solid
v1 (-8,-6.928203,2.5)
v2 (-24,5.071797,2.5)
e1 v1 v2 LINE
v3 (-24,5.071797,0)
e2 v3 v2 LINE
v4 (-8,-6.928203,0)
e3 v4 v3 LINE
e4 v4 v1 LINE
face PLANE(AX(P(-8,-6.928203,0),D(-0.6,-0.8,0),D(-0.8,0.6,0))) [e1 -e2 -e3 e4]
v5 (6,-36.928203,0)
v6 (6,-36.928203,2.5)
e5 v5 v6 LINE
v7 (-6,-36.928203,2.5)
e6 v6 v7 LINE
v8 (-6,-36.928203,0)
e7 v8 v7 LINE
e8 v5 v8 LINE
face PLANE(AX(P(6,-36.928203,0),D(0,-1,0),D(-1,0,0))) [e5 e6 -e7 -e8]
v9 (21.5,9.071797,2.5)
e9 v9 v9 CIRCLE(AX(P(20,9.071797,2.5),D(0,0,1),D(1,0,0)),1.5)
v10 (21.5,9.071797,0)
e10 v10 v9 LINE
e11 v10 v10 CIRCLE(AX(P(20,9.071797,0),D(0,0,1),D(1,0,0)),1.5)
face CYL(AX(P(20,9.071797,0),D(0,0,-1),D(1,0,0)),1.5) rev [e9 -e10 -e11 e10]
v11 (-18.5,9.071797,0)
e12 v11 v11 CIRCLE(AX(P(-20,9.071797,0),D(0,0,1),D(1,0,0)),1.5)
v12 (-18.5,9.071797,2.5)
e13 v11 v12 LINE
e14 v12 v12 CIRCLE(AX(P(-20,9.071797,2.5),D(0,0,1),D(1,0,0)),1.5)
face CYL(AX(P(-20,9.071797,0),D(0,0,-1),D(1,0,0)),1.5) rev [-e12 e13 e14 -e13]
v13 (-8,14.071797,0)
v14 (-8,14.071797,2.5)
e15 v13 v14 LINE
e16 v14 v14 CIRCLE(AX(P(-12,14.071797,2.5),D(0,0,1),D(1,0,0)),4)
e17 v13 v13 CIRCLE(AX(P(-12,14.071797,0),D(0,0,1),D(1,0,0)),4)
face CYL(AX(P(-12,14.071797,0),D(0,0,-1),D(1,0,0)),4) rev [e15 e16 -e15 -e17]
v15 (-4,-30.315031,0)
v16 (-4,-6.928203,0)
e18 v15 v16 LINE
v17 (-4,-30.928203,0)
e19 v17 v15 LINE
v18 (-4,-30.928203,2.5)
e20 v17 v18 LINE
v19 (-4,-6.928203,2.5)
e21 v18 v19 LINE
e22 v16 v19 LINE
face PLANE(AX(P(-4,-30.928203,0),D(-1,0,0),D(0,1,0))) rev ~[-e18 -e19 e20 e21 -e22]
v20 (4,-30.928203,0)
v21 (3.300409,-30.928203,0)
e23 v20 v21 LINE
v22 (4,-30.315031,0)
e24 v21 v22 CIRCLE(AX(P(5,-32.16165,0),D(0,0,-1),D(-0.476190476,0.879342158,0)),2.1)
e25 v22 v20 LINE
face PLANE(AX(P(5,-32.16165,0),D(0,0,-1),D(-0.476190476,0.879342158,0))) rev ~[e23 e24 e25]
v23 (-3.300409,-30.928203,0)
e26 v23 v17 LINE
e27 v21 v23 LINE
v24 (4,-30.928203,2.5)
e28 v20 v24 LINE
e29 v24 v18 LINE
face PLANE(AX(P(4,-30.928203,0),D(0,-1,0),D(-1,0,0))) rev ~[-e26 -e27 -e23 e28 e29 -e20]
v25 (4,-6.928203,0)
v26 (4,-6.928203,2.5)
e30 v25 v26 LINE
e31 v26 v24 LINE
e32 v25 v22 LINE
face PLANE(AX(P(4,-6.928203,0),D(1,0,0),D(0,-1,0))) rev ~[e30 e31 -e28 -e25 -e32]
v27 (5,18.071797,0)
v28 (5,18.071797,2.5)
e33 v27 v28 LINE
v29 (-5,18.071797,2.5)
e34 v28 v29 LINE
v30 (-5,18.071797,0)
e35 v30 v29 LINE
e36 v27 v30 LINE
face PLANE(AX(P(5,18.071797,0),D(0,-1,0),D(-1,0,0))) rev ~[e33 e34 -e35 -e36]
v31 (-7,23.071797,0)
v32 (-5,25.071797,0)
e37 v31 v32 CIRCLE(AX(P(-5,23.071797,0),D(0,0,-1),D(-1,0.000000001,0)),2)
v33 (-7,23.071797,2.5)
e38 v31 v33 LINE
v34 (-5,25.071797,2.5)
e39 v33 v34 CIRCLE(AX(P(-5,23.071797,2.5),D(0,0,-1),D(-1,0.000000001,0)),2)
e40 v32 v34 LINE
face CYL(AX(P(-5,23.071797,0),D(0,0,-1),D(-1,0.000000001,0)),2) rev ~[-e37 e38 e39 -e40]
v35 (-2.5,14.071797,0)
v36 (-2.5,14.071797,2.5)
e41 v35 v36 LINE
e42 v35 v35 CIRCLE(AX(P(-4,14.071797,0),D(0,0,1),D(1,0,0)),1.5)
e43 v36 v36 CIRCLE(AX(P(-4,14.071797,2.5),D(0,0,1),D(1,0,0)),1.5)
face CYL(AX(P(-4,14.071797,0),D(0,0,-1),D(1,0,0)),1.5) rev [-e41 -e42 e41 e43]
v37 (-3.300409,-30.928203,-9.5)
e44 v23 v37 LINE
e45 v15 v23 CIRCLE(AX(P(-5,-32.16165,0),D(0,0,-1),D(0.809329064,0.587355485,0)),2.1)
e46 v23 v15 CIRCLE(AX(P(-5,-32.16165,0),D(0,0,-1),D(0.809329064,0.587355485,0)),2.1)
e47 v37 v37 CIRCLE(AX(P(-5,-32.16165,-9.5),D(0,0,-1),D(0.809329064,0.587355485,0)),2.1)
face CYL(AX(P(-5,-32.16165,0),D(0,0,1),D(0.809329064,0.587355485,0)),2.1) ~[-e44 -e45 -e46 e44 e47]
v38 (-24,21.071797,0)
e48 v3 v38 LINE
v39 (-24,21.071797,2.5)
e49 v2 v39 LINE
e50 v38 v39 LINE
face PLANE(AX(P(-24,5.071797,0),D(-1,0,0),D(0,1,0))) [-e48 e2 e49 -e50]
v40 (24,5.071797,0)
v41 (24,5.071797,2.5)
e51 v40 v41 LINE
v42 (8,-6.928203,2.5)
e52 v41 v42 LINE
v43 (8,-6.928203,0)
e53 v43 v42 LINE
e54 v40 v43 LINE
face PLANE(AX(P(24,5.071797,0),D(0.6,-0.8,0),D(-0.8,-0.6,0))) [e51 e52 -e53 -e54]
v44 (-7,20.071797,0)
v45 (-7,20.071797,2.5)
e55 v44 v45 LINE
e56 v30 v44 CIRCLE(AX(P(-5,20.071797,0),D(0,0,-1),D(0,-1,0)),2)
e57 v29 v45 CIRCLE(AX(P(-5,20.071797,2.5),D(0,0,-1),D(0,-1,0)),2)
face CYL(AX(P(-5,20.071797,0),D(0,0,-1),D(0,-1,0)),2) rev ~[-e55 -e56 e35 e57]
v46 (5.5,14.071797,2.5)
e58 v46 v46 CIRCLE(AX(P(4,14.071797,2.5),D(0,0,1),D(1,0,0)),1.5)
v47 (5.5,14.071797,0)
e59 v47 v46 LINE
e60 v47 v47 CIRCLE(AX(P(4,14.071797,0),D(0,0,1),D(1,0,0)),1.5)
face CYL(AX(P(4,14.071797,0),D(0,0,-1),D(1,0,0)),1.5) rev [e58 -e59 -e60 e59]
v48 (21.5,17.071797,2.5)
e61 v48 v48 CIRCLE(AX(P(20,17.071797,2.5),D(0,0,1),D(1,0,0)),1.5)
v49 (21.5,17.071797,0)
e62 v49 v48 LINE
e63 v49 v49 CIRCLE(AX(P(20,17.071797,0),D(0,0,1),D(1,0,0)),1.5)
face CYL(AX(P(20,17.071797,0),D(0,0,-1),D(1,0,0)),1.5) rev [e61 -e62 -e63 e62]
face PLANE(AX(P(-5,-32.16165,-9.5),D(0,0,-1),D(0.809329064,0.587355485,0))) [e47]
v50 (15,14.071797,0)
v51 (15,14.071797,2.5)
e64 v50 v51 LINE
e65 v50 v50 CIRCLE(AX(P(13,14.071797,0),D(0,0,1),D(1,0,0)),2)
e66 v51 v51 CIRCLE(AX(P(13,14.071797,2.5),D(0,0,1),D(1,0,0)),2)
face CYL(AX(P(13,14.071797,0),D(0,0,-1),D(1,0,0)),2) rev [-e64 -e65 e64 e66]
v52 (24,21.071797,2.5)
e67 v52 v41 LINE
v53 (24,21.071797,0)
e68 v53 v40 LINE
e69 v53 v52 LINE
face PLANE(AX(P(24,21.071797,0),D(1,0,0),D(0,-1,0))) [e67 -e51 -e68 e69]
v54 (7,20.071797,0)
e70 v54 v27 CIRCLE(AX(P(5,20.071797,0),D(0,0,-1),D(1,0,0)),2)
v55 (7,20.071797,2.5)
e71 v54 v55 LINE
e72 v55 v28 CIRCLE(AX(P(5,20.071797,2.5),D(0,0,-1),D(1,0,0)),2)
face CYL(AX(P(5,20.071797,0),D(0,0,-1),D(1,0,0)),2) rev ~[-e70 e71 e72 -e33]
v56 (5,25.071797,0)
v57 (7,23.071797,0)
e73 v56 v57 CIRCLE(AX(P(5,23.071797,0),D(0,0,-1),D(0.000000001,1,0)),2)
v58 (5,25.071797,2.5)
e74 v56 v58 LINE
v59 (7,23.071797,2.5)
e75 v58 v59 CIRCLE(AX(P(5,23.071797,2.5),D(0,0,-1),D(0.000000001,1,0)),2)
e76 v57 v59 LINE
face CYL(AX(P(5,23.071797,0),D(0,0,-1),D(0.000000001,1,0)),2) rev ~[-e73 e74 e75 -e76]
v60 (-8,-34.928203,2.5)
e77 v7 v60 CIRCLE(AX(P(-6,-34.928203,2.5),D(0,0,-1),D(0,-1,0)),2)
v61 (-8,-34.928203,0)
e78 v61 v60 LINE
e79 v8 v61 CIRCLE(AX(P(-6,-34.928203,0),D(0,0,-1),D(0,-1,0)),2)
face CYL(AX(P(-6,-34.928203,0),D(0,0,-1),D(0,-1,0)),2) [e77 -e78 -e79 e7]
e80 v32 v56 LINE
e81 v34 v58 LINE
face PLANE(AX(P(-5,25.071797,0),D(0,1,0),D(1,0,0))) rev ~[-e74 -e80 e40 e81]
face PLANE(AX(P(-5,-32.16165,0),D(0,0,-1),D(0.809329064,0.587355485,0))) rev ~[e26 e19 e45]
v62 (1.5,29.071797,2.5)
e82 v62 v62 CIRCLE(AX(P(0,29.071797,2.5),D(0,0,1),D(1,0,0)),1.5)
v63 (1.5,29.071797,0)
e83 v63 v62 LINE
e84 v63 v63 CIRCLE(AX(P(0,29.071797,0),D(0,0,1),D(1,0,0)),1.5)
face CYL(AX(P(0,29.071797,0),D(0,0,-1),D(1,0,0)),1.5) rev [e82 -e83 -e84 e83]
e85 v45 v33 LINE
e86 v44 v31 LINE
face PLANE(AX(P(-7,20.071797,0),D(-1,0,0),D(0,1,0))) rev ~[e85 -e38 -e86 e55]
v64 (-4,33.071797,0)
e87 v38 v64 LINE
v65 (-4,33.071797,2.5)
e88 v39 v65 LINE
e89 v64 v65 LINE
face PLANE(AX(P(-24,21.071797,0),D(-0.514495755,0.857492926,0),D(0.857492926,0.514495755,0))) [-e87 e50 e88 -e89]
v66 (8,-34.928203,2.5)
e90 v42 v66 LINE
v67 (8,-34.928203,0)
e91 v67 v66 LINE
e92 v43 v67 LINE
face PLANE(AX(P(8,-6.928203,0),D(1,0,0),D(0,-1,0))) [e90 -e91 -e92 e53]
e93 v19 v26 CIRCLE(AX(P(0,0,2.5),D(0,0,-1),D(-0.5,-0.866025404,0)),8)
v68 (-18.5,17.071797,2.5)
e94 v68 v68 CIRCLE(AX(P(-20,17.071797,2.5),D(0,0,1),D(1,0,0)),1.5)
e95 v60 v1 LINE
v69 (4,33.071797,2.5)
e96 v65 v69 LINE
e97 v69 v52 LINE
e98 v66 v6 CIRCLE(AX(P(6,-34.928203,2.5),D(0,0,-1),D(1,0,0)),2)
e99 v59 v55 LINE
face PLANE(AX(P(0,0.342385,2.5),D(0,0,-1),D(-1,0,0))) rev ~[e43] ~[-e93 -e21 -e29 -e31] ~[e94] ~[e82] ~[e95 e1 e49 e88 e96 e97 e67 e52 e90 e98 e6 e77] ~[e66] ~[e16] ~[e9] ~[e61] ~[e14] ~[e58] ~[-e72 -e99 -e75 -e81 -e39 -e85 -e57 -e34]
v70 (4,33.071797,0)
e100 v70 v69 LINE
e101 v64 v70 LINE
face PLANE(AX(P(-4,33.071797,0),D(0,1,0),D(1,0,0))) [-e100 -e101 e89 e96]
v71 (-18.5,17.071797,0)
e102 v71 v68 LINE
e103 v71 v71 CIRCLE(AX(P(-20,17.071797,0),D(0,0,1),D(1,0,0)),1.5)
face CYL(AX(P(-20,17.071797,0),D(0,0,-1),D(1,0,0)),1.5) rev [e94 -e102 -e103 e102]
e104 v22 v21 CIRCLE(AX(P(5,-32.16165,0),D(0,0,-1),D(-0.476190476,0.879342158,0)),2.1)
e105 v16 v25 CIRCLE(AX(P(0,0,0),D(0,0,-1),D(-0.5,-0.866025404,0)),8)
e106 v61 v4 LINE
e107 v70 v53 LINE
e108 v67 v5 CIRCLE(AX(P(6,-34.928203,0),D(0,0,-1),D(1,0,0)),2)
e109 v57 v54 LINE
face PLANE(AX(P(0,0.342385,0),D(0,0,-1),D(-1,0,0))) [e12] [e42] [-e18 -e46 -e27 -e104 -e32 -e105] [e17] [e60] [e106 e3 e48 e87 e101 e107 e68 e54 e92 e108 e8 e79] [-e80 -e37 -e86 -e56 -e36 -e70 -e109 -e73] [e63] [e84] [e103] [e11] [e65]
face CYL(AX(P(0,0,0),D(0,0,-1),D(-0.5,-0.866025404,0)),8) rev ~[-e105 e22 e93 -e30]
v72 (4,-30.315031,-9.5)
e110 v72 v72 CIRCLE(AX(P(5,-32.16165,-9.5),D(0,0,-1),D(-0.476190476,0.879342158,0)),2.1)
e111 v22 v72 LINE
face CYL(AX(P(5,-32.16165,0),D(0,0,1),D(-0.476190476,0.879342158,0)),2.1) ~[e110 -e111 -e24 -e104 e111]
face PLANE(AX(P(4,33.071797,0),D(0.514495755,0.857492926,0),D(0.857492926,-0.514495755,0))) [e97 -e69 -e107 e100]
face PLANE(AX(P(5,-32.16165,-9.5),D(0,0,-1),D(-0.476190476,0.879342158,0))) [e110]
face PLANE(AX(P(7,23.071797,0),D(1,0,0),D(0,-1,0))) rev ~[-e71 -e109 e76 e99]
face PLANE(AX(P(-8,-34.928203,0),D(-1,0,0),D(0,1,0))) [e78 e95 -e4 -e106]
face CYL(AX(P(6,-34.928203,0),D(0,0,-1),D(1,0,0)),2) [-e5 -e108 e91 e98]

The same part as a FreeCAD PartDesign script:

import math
import FreeCAD as App
import Part
import Sketcher
Q = App.Units.Quantity

doc = App.newDocument("Part")
params = doc.addObject("Spreadsheet::Sheet", "Params")
for row, (alias, value) in enumerate([
    ("sketch1_diameter", "3 mm"),
    ("sketch1_diameter2", "4 mm"),
    ("sketch1_diameter3", "8 mm"),
    ("sketch1_radius", "8 mm"),
    ("sketch1_width", "12 mm"),
    ("pad1_length", "2.5 mm"),
    ("sketch2_diameter", "4.2 mm"),
    ("pad2_length", "9.5 mm"),
], start=1):
    params.set(f"A{row}", alias)
    params.set(f"B{row}", "=" + value)
    params.setAlias(f"B{row}", alias)

body = doc.addObject("PartDesign::Body", "Body")

# Sketch on XY plane
sketch1 = body.newObject("Sketcher::SketchObject", "Sketch")
sketch1.AttachmentSupport = (doc.getObject("XY_Plane"), [""])
sketch1.MapMode = "FlatFace"
sketch1.addGeometry([
    Part.LineSegment(App.Vector(-24, 21.1, 0), App.Vector(-24, 5.1, 0)),  # 0
    Part.LineSegment(App.Vector(-24, 5.1, 0), App.Vector(-8, -6.9, 0)),  # 1
    Part.LineSegment(App.Vector(-8, -6.9, 0), App.Vector(-8, -34.9, 0)),  # 2
    Part.ArcOfCircle(Part.Circle(App.Vector(-6, -34.9, 0), App.Vector(0, 0, 1), 2), math.radians(180), math.radians(270)),  # 3
    Part.LineSegment(App.Vector(-6, -36.9, 0), App.Vector(6, -36.9, 0)),  # 4
    Part.ArcOfCircle(Part.Circle(App.Vector(6, -34.9, 0), App.Vector(0, 0, 1), 2), math.radians(-90), math.radians(0)),  # 5
    Part.LineSegment(App.Vector(8, -34.9, 0), App.Vector(8, -6.9, 0)),  # 6
    Part.LineSegment(App.Vector(8, -6.9, 0), App.Vector(24, 5.1, 0)),  # 7
    Part.LineSegment(App.Vector(24, 5.1, 0), App.Vector(24, 21.1, 0)),  # 8
    Part.LineSegment(App.Vector(24, 21.1, 0), App.Vector(4, 33.1, 0)),  # 9
    Part.LineSegment(App.Vector(4, 33.1, 0), App.Vector(-4, 33.1, 0)),  # 10
    Part.LineSegment(App.Vector(-4, 33.1, 0), App.Vector(-24, 21.1, 0)),  # 11
    Part.LineSegment(App.Vector(4, -30.9, 0), App.Vector(-4, -30.9, 0)),  # 12
    Part.LineSegment(App.Vector(-4, -30.9, 0), App.Vector(-4, -6.9, 0)),  # 13
    Part.ArcOfCircle(Part.Circle(App.Vector(0, 0, 0), App.Vector(0, 0, 1), 8), math.radians(-60), math.radians(240)),  # 14
    Part.LineSegment(App.Vector(4, -6.9, 0), App.Vector(4, -30.9, 0)),  # 15
    Part.Circle(App.Vector(20, 9.1, 0), App.Vector(0, 0, 1), 1.5),  # 16
    Part.Circle(App.Vector(13, 14.1, 0), App.Vector(0, 0, 1), 2),  # 17
    Part.Circle(App.Vector(4, 14.1, 0), App.Vector(0, 0, 1), 1.5),  # 18
    Part.Circle(App.Vector(20, 17.1, 0), App.Vector(0, 0, 1), 1.5),  # 19
    Part.Circle(App.Vector(-4, 14.1, 0), App.Vector(0, 0, 1), 1.5),  # 20
    Part.Circle(App.Vector(-12, 14.1, 0), App.Vector(0, 0, 1), 4),  # 21
    Part.Circle(App.Vector(-20, 9.1, 0), App.Vector(0, 0, 1), 1.5),  # 22
    Part.LineSegment(App.Vector(-5, 25.1, 0), App.Vector(5, 25.1, 0)),  # 23
    Part.ArcOfCircle(Part.Circle(App.Vector(5, 23.1, 0), App.Vector(0, 0, 1), 2), math.radians(0), math.radians(90)),  # 24
    Part.LineSegment(App.Vector(7, 23.1, 0), App.Vector(7, 20.1, 0)),  # 25
    Part.ArcOfCircle(Part.Circle(App.Vector(5, 20.1, 0), App.Vector(0, 0, 1), 2), math.radians(-90), math.radians(0)),  # 26
    Part.LineSegment(App.Vector(5, 18.1, 0), App.Vector(-5, 18.1, 0)),  # 27
    Part.ArcOfCircle(Part.Circle(App.Vector(-5, 20.1, 0), App.Vector(0, 0, 1), 2), math.radians(180), math.radians(270)),  # 28
    Part.LineSegment(App.Vector(-7, 20.1, 0), App.Vector(-7, 23.1, 0)),  # 29
    Part.ArcOfCircle(Part.Circle(App.Vector(-5, 23.1, 0), App.Vector(0, 0, 1), 2), math.radians(90), math.radians(180)),  # 30
    Part.Circle(App.Vector(0, 29.1, 0), App.Vector(0, 0, 1), 1.5),  # 31
    Part.Circle(App.Vector(-20, 17.1, 0), App.Vector(0, 0, 1), 1.5),  # 32
], False)
sketch1.addConstraint([
    Sketcher.Constraint("Coincident", 0, 2, 1, 1),
    Sketcher.Constraint("Coincident", 1, 2, 2, 1),
    Sketcher.Constraint("Tangent", 2, 2, 3, 1),
    Sketcher.Constraint("Tangent", 3, 2, 4, 1),
    Sketcher.Constraint("Tangent", 4, 2, 5, 1),
    Sketcher.Constraint("Tangent", 5, 2, 6, 1),
    Sketcher.Constraint("Coincident", 6, 2, 7, 1),
    Sketcher.Constraint("Coincident", 7, 2, 8, 1),
    Sketcher.Constraint("Coincident", 8, 2, 9, 1),
    Sketcher.Constraint("Coincident", 9, 2, 10, 1),
    Sketcher.Constraint("Coincident", 10, 2, 11, 1),
    Sketcher.Constraint("Coincident", 11, 2, 0, 1),
    Sketcher.Constraint("Coincident", 12, 2, 13, 1),
    Sketcher.Constraint("Coincident", 13, 2, 14, 2),
    Sketcher.Constraint("Coincident", 14, 1, 15, 1),
    Sketcher.Constraint("Coincident", 15, 2, 12, 1),
    Sketcher.Constraint("Tangent", 23, 2, 24, 2),
    Sketcher.Constraint("Tangent", 24, 1, 25, 1),
    Sketcher.Constraint("Tangent", 25, 2, 26, 2),
    Sketcher.Constraint("Tangent", 26, 1, 27, 1),
    Sketcher.Constraint("Tangent", 27, 2, 28, 2),
    Sketcher.Constraint("Tangent", 28, 1, 29, 1),
    Sketcher.Constraint("Tangent", 29, 2, 30, 2),
    Sketcher.Constraint("Tangent", 30, 1, 23, 1),
    Sketcher.Constraint("Vertical", 0),
    Sketcher.Constraint("Vertical", 2),
    Sketcher.Constraint("Horizontal", 4),
    Sketcher.Constraint("Vertical", 6),
    Sketcher.Constraint("Vertical", 8),
    Sketcher.Constraint("Horizontal", 10),
    Sketcher.Constraint("Horizontal", 12),
    Sketcher.Constraint("Vertical", 13),
    Sketcher.Constraint("Vertical", 15),
    Sketcher.Constraint("Horizontal", 23),
    Sketcher.Constraint("Vertical", 25),
    Sketcher.Constraint("Horizontal", 27),
    Sketcher.Constraint("Vertical", 29),
    Sketcher.Constraint("Coincident", 14, 3, -1, 1),
    Sketcher.Constraint("Equal", 3, 5),
    Sketcher.Constraint("Equal", 5, 17),
    Sketcher.Constraint("Equal", 16, 18),
    Sketcher.Constraint("Equal", 18, 19),
    Sketcher.Constraint("Equal", 19, 20),
    Sketcher.Constraint("Equal", 20, 22),
    Sketcher.Constraint("Equal", 17, 24),
    Sketcher.Constraint("Equal", 24, 26),
    Sketcher.Constraint("Equal", 26, 28),
    Sketcher.Constraint("Equal", 28, 30),
    Sketcher.Constraint("Equal", 22, 31),
    Sketcher.Constraint("Equal", 31, 32),
    Sketcher.Constraint("Symmetric", 18, 3, 20, 3, -2),
    Sketcher.Constraint("Symmetric", 16, 3, 22, 3, -2),
    Sketcher.Constraint("Symmetric", 19, 3, 32, 3, -2),
    Sketcher.Constraint("Symmetric", 1, 2, 6, 2, -2),
    Sketcher.Constraint("Symmetric", 0, 2, 7, 2, -2),
    Sketcher.Constraint("PointOnObject", 31, 3, -2),
    Sketcher.Constraint("Horizontal", 17, 3, 18, 3),
    Sketcher.Constraint("Horizontal", 20, 3, 21, 3),
    Sketcher.Constraint("Horizontal", 8, 2, 11, 2),
    Sketcher.Constraint("Horizontal", 6, 2, 13, 2),
    Sketcher.Constraint("Horizontal", 13, 2, 14, 1),
    Sketcher.Constraint("Vertical", 16, 3, 19, 3),
    Sketcher.Constraint("Vertical", 18, 3, 9, 2),
    Sketcher.Constraint("Vertical", 20, 3, 10, 2),
    Sketcher.Constraint("Vertical", 10, 2, 12, 2),
    Sketcher.Constraint("Diameter", 16, Q("3 mm")),
    Sketcher.Constraint("Diameter", 17, Q("4 mm")),
    Sketcher.Constraint("Diameter", 21, Q("8 mm")),
    Sketcher.Constraint("Radius", 14, Q("8 mm")),
    Sketcher.Constraint("DistanceX", 4, 1, 4, 2, Q("12 mm")),
    Sketcher.Constraint("DistanceX", 10, 2, 10, 1, Q("8 mm")),
    Sketcher.Constraint("DistanceX", 23, 1, 23, 2, Q("10 mm")),
    Sketcher.Constraint("DistanceY", 0, 2, 0, 1, Q("16 mm")),
    Sketcher.Constraint("DistanceY", 2, 2, 2, 1, Q("28 mm")),
    Sketcher.Constraint("DistanceY", 13, 1, 13, 2, Q("24 mm")),
    Sketcher.Constraint("DistanceY", 25, 2, 25, 1, Q("3 mm")),
    Sketcher.Constraint("Distance", 1, Q("20 mm")),
    Sketcher.Constraint("DistanceX", -1, 1, 16, 3, Q("20 mm")),
    Sketcher.Constraint("DistanceX", -1, 1, 17, 3, Q("13 mm")),
    Sketcher.Constraint("DistanceX", 21, 3, -1, 1, Q("12 mm")),
    Sketcher.Constraint("DistanceX", -1, 1, 24, 3, Q("5 mm")),
    Sketcher.Constraint("DistanceX", 0, 2, -1, 1, Q("24 mm")),
    Sketcher.Constraint("DistanceY", 5, 3, 16, 3, Q("44 mm")),
    Sketcher.Constraint("DistanceY", 16, 3, 17, 3, Q("5 mm")),
    Sketcher.Constraint("DistanceY", 17, 3, 19, 3, Q("3 mm")),
    Sketcher.Constraint("DistanceY", 18, 3, 24, 3, Q("9 mm")),
    Sketcher.Constraint("DistanceY", 24, 3, 31, 3, Q("6 mm")),
    Sketcher.Constraint("DistanceY", 31, 3, 9, 2, Q("4 mm")),
])
sketch1.setExpression("Constraints[65]", "Params.sketch1_diameter")
sketch1.setExpression("Constraints[66]", "Params.sketch1_diameter2")
sketch1.setExpression("Constraints[67]", "Params.sketch1_diameter3")
sketch1.setExpression("Constraints[68]", "Params.sketch1_radius")
sketch1.setExpression("Constraints[69]", "Params.sketch1_width")
pad1 = body.newObject("PartDesign::Pad", "Pad")
pad1.Profile = sketch1
pad1.setExpression("Length", "Params.pad1_length")

# Sketch on XY plane
sketch2 = body.newObject("Sketcher::SketchObject", "Sketch001")
sketch2.AttachmentSupport = (doc.getObject("XY_Plane"), [""])
sketch2.MapMode = "FlatFace"
sketch2.addGeometry([
    Part.Circle(App.Vector(5, -32.2, 0), App.Vector(0, 0, 1), 2.1),
    Part.Circle(App.Vector(-5, -32.2, 0), App.Vector(0, 0, 1), 2.1),
], False)
sketch2.addConstraint([
    Sketcher.Constraint("Equal", 0, 1),
    Sketcher.Constraint("Symmetric", 0, 3, 1, 3, -2),
    Sketcher.Constraint("Diameter", 0, Q("4.2 mm")),
    Sketcher.Constraint("DistanceX", -1, 1, 0, 3, Q("5 mm")),
    Sketcher.Constraint("DistanceY", 0, 3, -1, 1, Q("32.16165 mm")),
])
sketch2.setExpression("Constraints[2]", "Params.sketch2_diameter")
pad2 = body.newObject("PartDesign::Pad", "Pad001")
pad2.Profile = sketch2
pad2.setExpression("Length", "Params.pad2_length")
pad2.Reversed = True

doc.recompute()
